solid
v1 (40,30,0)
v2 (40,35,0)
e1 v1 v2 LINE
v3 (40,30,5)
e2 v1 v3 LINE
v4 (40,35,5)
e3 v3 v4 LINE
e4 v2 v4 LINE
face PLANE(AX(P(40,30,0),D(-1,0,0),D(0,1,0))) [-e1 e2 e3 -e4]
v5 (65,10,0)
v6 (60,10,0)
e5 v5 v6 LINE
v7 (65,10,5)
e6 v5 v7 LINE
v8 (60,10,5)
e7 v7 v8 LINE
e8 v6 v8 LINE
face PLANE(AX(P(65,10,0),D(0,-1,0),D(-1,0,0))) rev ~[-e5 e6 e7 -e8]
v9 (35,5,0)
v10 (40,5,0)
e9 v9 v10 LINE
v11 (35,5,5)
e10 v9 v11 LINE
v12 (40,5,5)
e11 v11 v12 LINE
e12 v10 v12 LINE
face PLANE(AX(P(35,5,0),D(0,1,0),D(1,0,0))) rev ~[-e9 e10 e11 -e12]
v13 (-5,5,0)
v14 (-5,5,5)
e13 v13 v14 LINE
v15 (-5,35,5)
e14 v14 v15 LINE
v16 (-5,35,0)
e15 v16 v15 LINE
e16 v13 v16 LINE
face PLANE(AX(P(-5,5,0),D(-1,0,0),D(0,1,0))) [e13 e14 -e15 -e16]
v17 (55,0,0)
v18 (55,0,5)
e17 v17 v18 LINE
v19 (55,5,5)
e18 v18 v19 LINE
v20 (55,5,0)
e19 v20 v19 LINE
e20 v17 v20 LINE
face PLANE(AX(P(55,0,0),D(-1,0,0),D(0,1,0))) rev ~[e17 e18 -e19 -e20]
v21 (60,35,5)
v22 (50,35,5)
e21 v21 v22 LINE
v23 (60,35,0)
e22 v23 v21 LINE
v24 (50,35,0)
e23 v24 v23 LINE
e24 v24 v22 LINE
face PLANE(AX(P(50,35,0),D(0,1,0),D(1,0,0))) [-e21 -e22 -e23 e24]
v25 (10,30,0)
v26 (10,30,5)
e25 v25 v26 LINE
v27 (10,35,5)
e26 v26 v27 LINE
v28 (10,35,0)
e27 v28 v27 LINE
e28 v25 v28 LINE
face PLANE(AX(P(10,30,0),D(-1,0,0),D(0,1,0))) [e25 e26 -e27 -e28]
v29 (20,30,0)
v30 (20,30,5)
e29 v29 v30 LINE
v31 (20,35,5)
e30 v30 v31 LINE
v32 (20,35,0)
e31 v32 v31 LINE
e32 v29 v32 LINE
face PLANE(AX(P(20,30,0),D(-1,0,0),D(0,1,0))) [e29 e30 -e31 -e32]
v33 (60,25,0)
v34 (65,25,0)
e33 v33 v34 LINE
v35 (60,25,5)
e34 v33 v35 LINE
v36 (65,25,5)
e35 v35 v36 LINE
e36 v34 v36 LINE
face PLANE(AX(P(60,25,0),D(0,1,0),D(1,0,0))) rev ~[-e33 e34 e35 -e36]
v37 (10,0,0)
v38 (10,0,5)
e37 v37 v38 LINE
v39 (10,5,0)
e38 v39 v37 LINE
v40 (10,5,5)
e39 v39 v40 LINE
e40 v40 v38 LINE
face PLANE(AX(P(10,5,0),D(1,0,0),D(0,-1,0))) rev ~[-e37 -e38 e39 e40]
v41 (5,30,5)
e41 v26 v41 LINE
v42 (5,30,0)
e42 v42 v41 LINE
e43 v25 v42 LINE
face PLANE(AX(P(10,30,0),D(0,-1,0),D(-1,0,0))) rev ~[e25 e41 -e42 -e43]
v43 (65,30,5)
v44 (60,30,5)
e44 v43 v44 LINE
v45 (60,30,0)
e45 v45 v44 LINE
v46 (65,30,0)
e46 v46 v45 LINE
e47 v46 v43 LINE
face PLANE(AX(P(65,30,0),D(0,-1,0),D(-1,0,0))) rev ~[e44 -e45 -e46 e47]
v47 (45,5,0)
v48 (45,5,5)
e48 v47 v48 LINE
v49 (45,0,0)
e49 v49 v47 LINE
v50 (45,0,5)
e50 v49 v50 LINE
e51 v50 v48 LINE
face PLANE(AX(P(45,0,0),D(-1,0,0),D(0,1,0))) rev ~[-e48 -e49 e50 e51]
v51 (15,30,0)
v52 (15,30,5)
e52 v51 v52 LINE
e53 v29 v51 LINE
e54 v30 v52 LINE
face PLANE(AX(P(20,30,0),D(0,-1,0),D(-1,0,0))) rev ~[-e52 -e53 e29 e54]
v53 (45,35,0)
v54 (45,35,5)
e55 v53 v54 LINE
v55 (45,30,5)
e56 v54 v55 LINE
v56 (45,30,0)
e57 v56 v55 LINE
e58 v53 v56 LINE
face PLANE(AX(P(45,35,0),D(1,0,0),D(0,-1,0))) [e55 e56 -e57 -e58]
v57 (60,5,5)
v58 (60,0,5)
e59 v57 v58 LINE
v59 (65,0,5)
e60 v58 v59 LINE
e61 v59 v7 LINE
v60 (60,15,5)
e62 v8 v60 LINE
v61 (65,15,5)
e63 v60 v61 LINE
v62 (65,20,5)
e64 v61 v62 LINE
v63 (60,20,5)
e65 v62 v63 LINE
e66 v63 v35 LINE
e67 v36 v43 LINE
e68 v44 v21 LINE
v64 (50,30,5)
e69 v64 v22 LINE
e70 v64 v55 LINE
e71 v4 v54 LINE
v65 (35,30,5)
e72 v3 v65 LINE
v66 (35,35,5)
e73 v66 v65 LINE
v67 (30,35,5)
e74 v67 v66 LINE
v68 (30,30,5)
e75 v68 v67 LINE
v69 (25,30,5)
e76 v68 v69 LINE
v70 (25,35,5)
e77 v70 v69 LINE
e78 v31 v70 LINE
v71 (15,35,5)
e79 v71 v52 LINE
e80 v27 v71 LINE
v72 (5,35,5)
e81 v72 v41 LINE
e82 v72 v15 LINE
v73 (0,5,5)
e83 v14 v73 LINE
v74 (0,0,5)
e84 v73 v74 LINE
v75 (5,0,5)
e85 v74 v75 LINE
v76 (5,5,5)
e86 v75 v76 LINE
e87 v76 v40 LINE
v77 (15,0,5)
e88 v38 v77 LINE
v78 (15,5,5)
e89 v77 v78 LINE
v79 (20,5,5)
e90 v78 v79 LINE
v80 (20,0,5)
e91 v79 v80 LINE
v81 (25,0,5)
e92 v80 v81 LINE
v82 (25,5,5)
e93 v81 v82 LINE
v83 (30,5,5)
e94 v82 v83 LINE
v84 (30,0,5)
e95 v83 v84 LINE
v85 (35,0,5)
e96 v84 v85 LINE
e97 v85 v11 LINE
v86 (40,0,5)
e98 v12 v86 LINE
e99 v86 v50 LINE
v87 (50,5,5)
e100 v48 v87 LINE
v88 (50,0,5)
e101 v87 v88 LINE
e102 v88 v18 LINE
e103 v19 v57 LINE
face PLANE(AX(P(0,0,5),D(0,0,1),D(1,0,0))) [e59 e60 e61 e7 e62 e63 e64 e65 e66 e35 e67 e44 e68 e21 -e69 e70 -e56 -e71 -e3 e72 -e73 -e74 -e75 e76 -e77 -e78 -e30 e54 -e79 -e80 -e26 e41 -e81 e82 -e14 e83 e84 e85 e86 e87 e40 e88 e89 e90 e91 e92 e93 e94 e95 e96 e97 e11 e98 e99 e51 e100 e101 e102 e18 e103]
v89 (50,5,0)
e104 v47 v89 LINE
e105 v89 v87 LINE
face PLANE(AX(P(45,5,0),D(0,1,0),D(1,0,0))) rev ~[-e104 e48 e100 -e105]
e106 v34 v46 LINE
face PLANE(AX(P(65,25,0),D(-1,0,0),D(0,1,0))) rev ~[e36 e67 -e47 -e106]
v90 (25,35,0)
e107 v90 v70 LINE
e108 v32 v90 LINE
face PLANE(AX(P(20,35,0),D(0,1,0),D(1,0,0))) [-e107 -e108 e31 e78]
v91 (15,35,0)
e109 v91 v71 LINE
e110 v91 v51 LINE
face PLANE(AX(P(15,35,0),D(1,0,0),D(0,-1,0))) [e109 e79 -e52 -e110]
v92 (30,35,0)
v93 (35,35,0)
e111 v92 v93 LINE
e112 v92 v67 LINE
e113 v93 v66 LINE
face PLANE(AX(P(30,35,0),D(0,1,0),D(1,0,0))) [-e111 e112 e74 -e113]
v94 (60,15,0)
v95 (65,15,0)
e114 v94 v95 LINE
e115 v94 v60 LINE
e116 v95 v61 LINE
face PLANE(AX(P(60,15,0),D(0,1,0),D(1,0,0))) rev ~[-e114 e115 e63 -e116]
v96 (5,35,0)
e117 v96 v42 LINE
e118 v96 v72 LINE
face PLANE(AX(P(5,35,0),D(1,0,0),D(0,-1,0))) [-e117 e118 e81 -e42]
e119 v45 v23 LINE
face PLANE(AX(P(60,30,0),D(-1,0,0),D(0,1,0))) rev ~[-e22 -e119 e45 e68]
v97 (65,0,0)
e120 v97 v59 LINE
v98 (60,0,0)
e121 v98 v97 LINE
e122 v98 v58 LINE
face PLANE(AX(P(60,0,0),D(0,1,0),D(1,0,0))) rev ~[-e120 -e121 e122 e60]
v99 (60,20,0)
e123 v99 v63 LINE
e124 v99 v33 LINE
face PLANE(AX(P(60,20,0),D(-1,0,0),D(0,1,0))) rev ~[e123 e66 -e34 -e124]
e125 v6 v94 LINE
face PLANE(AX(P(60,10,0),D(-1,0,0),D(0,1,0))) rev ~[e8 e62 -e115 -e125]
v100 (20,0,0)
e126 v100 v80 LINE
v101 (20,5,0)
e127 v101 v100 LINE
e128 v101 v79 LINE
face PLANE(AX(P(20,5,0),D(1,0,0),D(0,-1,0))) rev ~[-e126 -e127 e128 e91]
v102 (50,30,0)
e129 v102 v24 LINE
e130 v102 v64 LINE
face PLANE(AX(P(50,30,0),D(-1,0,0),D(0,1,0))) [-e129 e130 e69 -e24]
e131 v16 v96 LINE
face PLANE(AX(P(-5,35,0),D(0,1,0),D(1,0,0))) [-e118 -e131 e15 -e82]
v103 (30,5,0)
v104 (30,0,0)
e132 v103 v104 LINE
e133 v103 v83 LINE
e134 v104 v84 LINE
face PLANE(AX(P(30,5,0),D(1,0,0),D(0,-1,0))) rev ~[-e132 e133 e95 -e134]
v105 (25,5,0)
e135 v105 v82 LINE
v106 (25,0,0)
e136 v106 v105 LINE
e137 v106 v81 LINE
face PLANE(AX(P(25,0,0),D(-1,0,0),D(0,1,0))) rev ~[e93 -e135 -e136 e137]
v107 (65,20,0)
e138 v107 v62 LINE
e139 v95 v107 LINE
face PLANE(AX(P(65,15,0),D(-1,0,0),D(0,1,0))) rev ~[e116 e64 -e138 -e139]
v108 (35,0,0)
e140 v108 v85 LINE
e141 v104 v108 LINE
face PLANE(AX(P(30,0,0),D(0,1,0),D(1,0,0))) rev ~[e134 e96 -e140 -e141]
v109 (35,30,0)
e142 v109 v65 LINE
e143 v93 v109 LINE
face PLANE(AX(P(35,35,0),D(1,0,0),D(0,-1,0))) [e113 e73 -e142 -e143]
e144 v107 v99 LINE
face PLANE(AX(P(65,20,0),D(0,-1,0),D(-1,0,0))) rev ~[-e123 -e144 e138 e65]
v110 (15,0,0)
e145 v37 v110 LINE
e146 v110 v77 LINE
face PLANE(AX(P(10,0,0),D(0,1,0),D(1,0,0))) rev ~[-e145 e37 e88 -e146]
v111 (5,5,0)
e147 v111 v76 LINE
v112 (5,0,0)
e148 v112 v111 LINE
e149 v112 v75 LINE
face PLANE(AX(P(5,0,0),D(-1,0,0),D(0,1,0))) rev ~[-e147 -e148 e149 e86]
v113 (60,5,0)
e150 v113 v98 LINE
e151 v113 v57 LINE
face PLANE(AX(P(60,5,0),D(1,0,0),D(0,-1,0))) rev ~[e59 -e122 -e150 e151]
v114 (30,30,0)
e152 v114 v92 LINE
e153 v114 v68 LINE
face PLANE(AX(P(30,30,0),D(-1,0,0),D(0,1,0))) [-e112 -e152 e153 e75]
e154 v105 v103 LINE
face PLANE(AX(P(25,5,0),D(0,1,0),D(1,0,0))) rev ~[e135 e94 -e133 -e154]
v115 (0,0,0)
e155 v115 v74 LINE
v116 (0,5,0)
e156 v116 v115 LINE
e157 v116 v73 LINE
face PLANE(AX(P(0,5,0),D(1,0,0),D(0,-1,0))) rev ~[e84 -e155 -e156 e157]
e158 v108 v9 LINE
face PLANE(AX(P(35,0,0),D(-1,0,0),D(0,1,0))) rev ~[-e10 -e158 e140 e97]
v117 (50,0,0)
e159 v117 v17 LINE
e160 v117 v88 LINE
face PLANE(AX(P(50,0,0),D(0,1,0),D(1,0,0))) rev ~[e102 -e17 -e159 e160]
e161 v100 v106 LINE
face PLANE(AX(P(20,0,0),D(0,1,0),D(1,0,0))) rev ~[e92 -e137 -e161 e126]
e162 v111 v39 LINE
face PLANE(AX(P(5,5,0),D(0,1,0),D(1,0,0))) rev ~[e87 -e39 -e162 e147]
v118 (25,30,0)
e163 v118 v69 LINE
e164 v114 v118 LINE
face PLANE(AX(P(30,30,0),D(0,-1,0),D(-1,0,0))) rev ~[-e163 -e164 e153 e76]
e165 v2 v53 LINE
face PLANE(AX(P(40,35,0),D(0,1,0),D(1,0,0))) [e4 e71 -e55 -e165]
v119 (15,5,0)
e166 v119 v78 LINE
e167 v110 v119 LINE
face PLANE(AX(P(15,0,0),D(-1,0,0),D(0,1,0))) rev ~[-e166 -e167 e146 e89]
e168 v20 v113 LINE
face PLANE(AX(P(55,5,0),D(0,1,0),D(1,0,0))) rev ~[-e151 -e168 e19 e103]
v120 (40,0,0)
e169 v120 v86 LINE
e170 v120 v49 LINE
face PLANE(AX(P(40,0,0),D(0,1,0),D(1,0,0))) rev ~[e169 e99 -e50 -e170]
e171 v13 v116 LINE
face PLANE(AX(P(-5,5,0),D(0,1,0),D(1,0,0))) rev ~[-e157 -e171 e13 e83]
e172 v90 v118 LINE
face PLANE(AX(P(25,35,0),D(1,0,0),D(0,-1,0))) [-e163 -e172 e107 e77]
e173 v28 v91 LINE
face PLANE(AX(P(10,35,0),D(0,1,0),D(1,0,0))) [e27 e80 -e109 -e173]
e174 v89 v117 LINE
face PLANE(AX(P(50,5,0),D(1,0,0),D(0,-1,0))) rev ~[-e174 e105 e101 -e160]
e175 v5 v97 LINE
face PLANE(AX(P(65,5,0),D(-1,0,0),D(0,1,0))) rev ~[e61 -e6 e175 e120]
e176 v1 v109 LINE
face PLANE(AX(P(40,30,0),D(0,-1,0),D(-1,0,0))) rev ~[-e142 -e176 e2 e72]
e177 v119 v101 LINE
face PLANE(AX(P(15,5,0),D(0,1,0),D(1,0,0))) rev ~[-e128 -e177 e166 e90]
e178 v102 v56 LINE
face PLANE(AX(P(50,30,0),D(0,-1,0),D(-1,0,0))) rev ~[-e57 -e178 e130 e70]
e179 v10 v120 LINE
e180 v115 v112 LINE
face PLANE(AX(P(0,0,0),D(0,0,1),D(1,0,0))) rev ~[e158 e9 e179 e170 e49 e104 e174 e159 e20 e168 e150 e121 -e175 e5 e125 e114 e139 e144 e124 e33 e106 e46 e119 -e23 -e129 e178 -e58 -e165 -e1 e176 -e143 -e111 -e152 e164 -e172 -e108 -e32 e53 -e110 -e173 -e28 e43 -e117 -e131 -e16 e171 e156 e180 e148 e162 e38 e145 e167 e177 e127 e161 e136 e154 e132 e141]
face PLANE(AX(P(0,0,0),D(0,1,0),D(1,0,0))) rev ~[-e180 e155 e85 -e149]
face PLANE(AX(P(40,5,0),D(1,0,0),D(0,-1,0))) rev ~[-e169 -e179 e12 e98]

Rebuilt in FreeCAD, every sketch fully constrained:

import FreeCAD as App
import Part
import Sketcher
from FreeCAD import Vector

doc = App.newDocument("Part")
body = doc.addObject("PartDesign::Body", "Body")

sketch1 = body.newObject("Sketcher::SketchObject", "Sketch")
sketch1.AttachmentSupport = (doc.getObject("XY_Plane"), [""])
sketch1.MapMode = "FlatFace"
sketch1.addGeometry([
    Part.LineSegment(Vector(0, 5, 0), Vector(0, 0, 0)),
    Part.LineSegment(Vector(0, 0, 0), Vector(5, 0, 0)),
    Part.LineSegment(Vector(5, 0, 0), Vector(5, 5, 0)),
    Part.LineSegment(Vector(5, 5, 0), Vector(10, 5, 0)),
    Part.LineSegment(Vector(10, 5, 0), Vector(10, 0, 0)),
    Part.LineSegment(Vector(10, 0, 0), Vector(15, 0, 0)),
    Part.LineSegment(Vector(15, 0, 0), Vector(15, 5, 0)),
    Part.LineSegment(Vector(15, 5, 0), Vector(20, 5, 0)),
    Part.LineSegment(Vector(20, 5, 0), Vector(20, 0, 0)),
    Part.LineSegment(Vector(20, 0, 0), Vector(25, 0, 0)),
    Part.LineSegment(Vector(25, 0, 0), Vector(25, 5, 0)),
    Part.LineSegment(Vector(25, 5, 0), Vector(30, 5, 0)),
    Part.LineSegment(Vector(30, 5, 0), Vector(30, 0, 0)),
    Part.LineSegment(Vector(30, 0, 0), Vector(35, 0, 0)),
    Part.LineSegment(Vector(35, 0, 0), Vector(35, 5, 0)),
    Part.LineSegment(Vector(35, 5, 0), Vector(40, 5, 0)),
    Part.LineSegment(Vector(40, 5, 0), Vector(40, 0, 0)),
    Part.LineSegment(Vector(40, 0, 0), Vector(45, 0, 0)),
    Part.LineSegment(Vector(45, 0, 0), Vector(45, 5, 0)),
    Part.LineSegment(Vector(45, 5, 0), Vector(50, 5, 0)),
    Part.LineSegment(Vector(50, 5, 0), Vector(50, 0, 0)),
    Part.LineSegment(Vector(50, 0, 0), Vector(55, 0, 0)),
    Part.LineSegment(Vector(55, 0, 0), Vector(55, 5, 0)),
    Part.LineSegment(Vector(55, 5, 0), Vector(60, 5, 0)),
    Part.LineSegment(Vector(60, 5, 0), Vector(60, 0, 0)),
    Part.LineSegment(Vector(60, 0, 0), Vector(65, 0, 0)),
    Part.LineSegment(Vector(65, 0, 0), Vector(65, 10, 0)),
    Part.LineSegment(Vector(65, 10, 0), Vector(60, 10, 0)),
    Part.LineSegment(Vector(60, 10, 0), Vector(60, 15, 0)),
    Part.LineSegment(Vector(60, 15, 0), Vector(65, 15, 0)),
    Part.LineSegment(Vector(65, 15, 0), Vector(65, 20, 0)),
    Part.LineSegment(Vector(65, 20, 0), Vector(60, 20, 0)),
    Part.LineSegment(Vector(60, 20, 0), Vector(60, 25, 0)),
    Part.LineSegment(Vector(60, 25, 0), Vector(65, 25, 0)),
    Part.LineSegment(Vector(65, 25, 0), Vector(65, 30, 0)),
    Part.LineSegment(Vector(65, 30, 0), Vector(60, 30, 0)),
    Part.LineSegment(Vector(60, 30, 0), Vector(60, 35, 0)),
    Part.LineSegment(Vector(60, 35, 0), Vector(50, 35, 0)),
    Part.LineSegment(Vector(50, 35, 0), Vector(50, 30, 0)),
    Part.LineSegment(Vector(50, 30, 0), Vector(45, 30, 0)),
    Part.LineSegment(Vector(45, 30, 0), Vector(45, 35, 0)),
    Part.LineSegment(Vector(45, 35, 0), Vector(40, 35, 0)),
    Part.LineSegment(Vector(40, 35, 0), Vector(40, 30, 0)),
    Part.LineSegment(Vector(40, 30, 0), Vector(35, 30, 0)),
    Part.LineSegment(Vector(35, 30, 0), Vector(35, 35, 0)),
    Part.LineSegment(Vector(35, 35, 0), Vector(30, 35, 0)),
    Part.LineSegment(Vector(30, 35, 0), Vector(30, 30, 0)),
    Part.LineSegment(Vector(30, 30, 0), Vector(25, 30, 0)),
    Part.LineSegment(Vector(25, 30, 0), Vector(25, 35, 0)),
    Part.LineSegment(Vector(25, 35, 0), Vector(20, 35, 0)),
    Part.LineSegment(Vector(20, 35, 0), Vector(20, 30, 0)),
    Part.LineSegment(Vector(20, 30, 0), Vector(15, 30, 0)),
    Part.LineSegment(Vector(15, 30, 0), Vector(15, 35, 0)),
    Part.LineSegment(Vector(15, 35, 0), Vector(10, 35, 0)),
    Part.LineSegment(Vector(10, 35, 0), Vector(10, 30, 0)),
    Part.LineSegment(Vector(10, 30, 0), Vector(5, 30, 0)),
    Part.LineSegment(Vector(5, 30, 0), Vector(5, 35, 0)),
    Part.LineSegment(Vector(5, 35, 0), Vector(-5, 35, 0)),
    Part.LineSegment(Vector(-5, 35, 0), Vector(-5, 5, 0)),
    Part.LineSegment(Vector(-5, 5, 0), Vector(0, 5, 0)),
], False)
sketch1.addConstraint([
    Sketcher.Constraint("Coincident", 0, 2, 1, 1),
    Sketcher.Constraint("Coincident", 1, 2, 2, 1),
    Sketcher.Constraint("Coincident", 2, 2, 3, 1),
    Sketcher.Constraint("Coincident", 3, 2, 4, 1),
    Sketcher.Constraint("Coincident", 4, 2, 5, 1),
    Sketcher.Constraint("Coincident", 5, 2, 6, 1),
    Sketcher.Constraint("Coincident", 6, 2, 7, 1),
    Sketcher.Constraint("Coincident", 7, 2, 8, 1),
    Sketcher.Constraint("Coincident", 8, 2, 9, 1),
    Sketcher.Constraint("Coincident", 9, 2, 10, 1),
    Sketcher.Constraint("Coincident", 10, 2, 11, 1),
    Sketcher.Constraint("Coincident", 11, 2, 12, 1),
    Sketcher.Constraint("Coincident", 12, 2, 13, 1),
    Sketcher.Constraint("Coincident", 13, 2, 14, 1),
    Sketcher.Constraint("Coincident", 14, 2, 15, 1),
    Sketcher.Constraint("Coincident", 15, 2, 16, 1),
    Sketcher.Constraint("Coincident", 16, 2, 17, 1),
    Sketcher.Constraint("Coincident", 17, 2, 18, 1),
    Sketcher.Constraint("Coincident", 18, 2, 19, 1),
    Sketcher.Constraint("Coincident", 19, 2, 20, 1),
    Sketcher.Constraint("Coincident", 20, 2, 21, 1),
    Sketcher.Constraint("Coincident", 21, 2, 22, 1),
    Sketcher.Constraint("Coincident", 22, 2, 23, 1),
    Sketcher.Constraint("Coincident", 23, 2, 24, 1),
    Sketcher.Constraint("Coincident", 24, 2, 25, 1),
    Sketcher.Constraint("Coincident", 25, 2, 26, 1),
    Sketcher.Constraint("Coincident", 26, 2, 27, 1),
    Sketcher.Constraint("Coincident", 27, 2, 28, 1),
    Sketcher.Constraint("Coincident", 28, 2, 29, 1),
    Sketcher.Constraint("Coincident", 29, 2, 30, 1),
    Sketcher.Constraint("Coincident", 30, 2, 31, 1),
    Sketcher.Constraint("Coincident", 31, 2, 32, 1),
    Sketcher.Constraint("Coincident", 32, 2, 33, 1),
    Sketcher.Constraint("Coincident", 33, 2, 34, 1),
    Sketcher.Constraint("Coincident", 34, 2, 35, 1),
    Sketcher.Constraint("Coincident", 35, 2, 36, 1),
    Sketcher.Constraint("Coincident", 36, 2, 37, 1),
    Sketcher.Constraint("Coincident", 37, 2, 38, 1),
    Sketcher.Constraint("Coincident", 38, 2, 39, 1),
    Sketcher.Constraint("Coincident", 39, 2, 40, 1),
    Sketcher.Constraint("Coincident", 40, 2, 41, 1),
    Sketcher.Constraint("Coincident", 41, 2, 42, 1),
    Sketcher.Constraint("Coincident", 42, 2, 43, 1),
    Sketcher.Constraint("Coincident", 43, 2, 44, 1),
    Sketcher.Constraint("Coincident", 44, 2, 45, 1),
    Sketcher.Constraint("Coincident", 45, 2, 46, 1),
    Sketcher.Constraint("Coincident", 46, 2, 47, 1),
    Sketcher.Constraint("Coincident", 47, 2, 48, 1),
    Sketcher.Constraint("Coincident", 48, 2, 49, 1),
    Sketcher.Constraint("Coincident", 49, 2, 50, 1),
    Sketcher.Constraint("Coincident", 50, 2, 51, 1),
    Sketcher.Constraint("Coincident", 51, 2, 52, 1),
    Sketcher.Constraint("Coincident", 52, 2, 53, 1),
    Sketcher.Constraint("Coincident", 53, 2, 54, 1),
    Sketcher.Constraint("Coincident", 54, 2, 55, 1),
    Sketcher.Constraint("Coincident", 55, 2, 56, 1),
    Sketcher.Constraint("Coincident", 56, 2, 57, 1),
    Sketcher.Constraint("Coincident", 57, 2, 58, 1),
    Sketcher.Constraint("Coincident", 58, 2, 59, 1),
    Sketcher.Constraint("Coincident", 59, 2, 0, 1),
    Sketcher.Constraint("Vertical", 0),
    Sketcher.Constraint("Horizontal", 1),
    Sketcher.Constraint("Vertical", 2),
    Sketcher.Constraint("Horizontal", 3),
    Sketcher.Constraint("Vertical", 4),
    Sketcher.Constraint("Horizontal", 5),
    Sketcher.Constraint("Vertical", 6),
    Sketcher.Constraint("Horizontal", 7),
    Sketcher.Constraint("Vertical", 8),
    Sketcher.Constraint("Horizontal", 9),
    Sketcher.Constraint("Vertical", 10),
    Sketcher.Constraint("Horizontal", 11),
    Sketcher.Constraint("Vertical", 12),
    Sketcher.Constraint("Horizontal", 13),
    Sketcher.Constraint("Vertical", 14),
    Sketcher.Constraint("Horizontal", 15),
    Sketcher.Constraint("Vertical", 16),
    Sketcher.Constraint("Horizontal", 17),
    Sketcher.Constraint("Vertical", 18),
    Sketcher.Constraint("Horizontal", 19),
    Sketcher.Constraint("Vertical", 20),
    Sketcher.Constraint("Horizontal", 21),
    Sketcher.Constraint("Vertical", 22),
    Sketcher.Constraint("Horizontal", 23),
    Sketcher.Constraint("Vertical", 24),
    Sketcher.Constraint("Horizontal", 25),
    Sketcher.Constraint("Vertical", 26),
    Sketcher.Constraint("Horizontal", 27),
    Sketcher.Constraint("Vertical", 28),
    Sketcher.Constraint("Horizontal", 29),
    Sketcher.Constraint("Vertical", 30),
    Sketcher.Constraint("Horizontal", 31),
    Sketcher.Constraint("Vertical", 32),
    Sketcher.Constraint("Horizontal", 33),
    Sketcher.Constraint("Vertical", 34),
    Sketcher.Constraint("Horizontal", 35),
    Sketcher.Constraint("Vertical", 36),
    Sketcher.Constraint("Horizontal", 37),
    Sketcher.Constraint("Vertical", 38),
    Sketcher.Constraint("Horizontal", 39),
    Sketcher.Constraint("Vertical", 40),
    Sketcher.Constraint("Horizontal", 41),
    Sketcher.Constraint("Vertical", 42),
    Sketcher.Constraint("Horizontal", 43),
    Sketcher.Constraint("Vertical", 44),
    Sketcher.Constraint("Horizontal", 45),
    Sketcher.Constraint("Vertical", 46),
    Sketcher.Constraint("Horizontal", 47),
    Sketcher.Constraint("Vertical", 48),
    Sketcher.Constraint("Horizontal", 49),
    Sketcher.Constraint("Vertical", 50),
    Sketcher.Constraint("Horizontal", 51),
    Sketcher.Constraint("Vertical", 52),
    Sketcher.Constraint("Horizontal", 53),
    Sketcher.Constraint("Vertical", 54),
    Sketcher.Constraint("Horizontal", 55),
    Sketcher.Constraint("Vertical", 56),
    Sketcher.Constraint("Horizontal", 57),
    Sketcher.Constraint("Vertical", 58),
    Sketcher.Constraint("Horizontal", 59),
    Sketcher.Constraint("Coincident", 0, 2, -1, 1),
    Sketcher.Constraint("Symmetric", 2, 2, 58, 2, -2),
    Sketcher.Constraint("PointOnObject", 4, 2, -1),
    Sketcher.Constraint("PointOnObject", 8, 2, -1),
    Sketcher.Constraint("PointOnObject", 12, 2, -1),
    Sketcher.Constraint("PointOnObject", 16, 2, -1),
    Sketcher.Constraint("PointOnObject", 20, 2, -1),
    Sketcher.Constraint("PointOnObject", 24, 2, -1),
    Sketcher.Constraint("Horizontal", 3, 2, 6, 2),
    Sketcher.Constraint("Horizontal", 7, 2, 10, 2),
    Sketcher.Constraint("Horizontal", 11, 2, 14, 2),
    Sketcher.Constraint("Horizontal", 15, 2, 18, 2),
    Sketcher.Constraint("Horizontal", 19, 2, 22, 2),
    Sketcher.Constraint("Horizontal", 35, 2, 38, 2),
    Sketcher.Constraint("Horizontal", 37, 2, 40, 2),
    Sketcher.Constraint("Horizontal", 39, 2, 42, 2),
    Sketcher.Constraint("Horizontal", 41, 2, 44, 2),
    Sketcher.Constraint("Horizontal", 43, 2, 46, 2),
    Sketcher.Constraint("Horizontal", 45, 2, 48, 2),
    Sketcher.Constraint("Horizontal", 47, 2, 50, 2),
    Sketcher.Constraint("Horizontal", 49, 2, 52, 2),
    Sketcher.Constraint("Horizontal", 51, 2, 54, 2),
    Sketcher.Constraint("Horizontal", 53, 2, 56, 2),
    Sketcher.Constraint("Vertical", 24, 2, 27, 2),
    Sketcher.Constraint("Vertical", 26, 2, 29, 2),
    Sketcher.Constraint("Vertical", 28, 2, 31, 2),
    Sketcher.Constraint("Vertical", 30, 2, 33, 2),
    Sketcher.Constraint("Vertical", 32, 2, 35, 2),
    Sketcher.Constraint("Vertical", 20, 2, 37, 2),
    Sketcher.Constraint("Vertical", 18, 2, 39, 2),
    Sketcher.Constraint("Vertical", 16, 2, 41, 2),
    Sketcher.Constraint("Vertical", 14, 2, 43, 2),
    Sketcher.Constraint("Vertical", 12, 2, 45, 2),
    Sketcher.Constraint("Vertical", 10, 2, 47, 2),
    Sketcher.Constraint("Vertical", 8, 2, 49, 2),
    Sketcher.Constraint("Vertical", 6, 2, 51, 2),
    Sketcher.Constraint("Vertical", 4, 2, 53, 2),
    Sketcher.Constraint("Vertical", 2, 2, 55, 2),
    Sketcher.Constraint("Equal", 1, 3),
    Sketcher.Constraint("Equal", 3, 5),
    Sketcher.Constraint("Equal", 5, 7),
    Sketcher.Constraint("Equal", 7, 9),
    Sketcher.Constraint("Equal", 9, 11),
    Sketcher.Constraint("Equal", 11, 13),
    Sketcher.Constraint("Equal", 13, 15),
    Sketcher.Constraint("Equal", 15, 17),
    Sketcher.Constraint("Equal", 17, 19),
    Sketcher.Constraint("Equal", 19, 21),
    Sketcher.Constraint("Equal", 21, 23),
    Sketcher.Constraint("Equal", 23, 25),
    Sketcher.Constraint("Equal", 59, 0),
    Sketcher.Constraint("Equal", 57, 26),
    Sketcher.Constraint("Equal", 24, 28),
    Sketcher.Constraint("Equal", 28, 30),
    Sketcher.Constraint("Equal", 30, 32),
    Sketcher.Constraint("Equal", 32, 34),
    Sketcher.Constraint("Equal", 34, 36),
    Sketcher.Constraint("DistanceX", 37, 2, 37, 1, 10.0),
])
pad1 = body.newObject("PartDesign::Pad", "Pad")
pad1.Profile = sketch1
pad1.Length = 5

doc.recompute()
